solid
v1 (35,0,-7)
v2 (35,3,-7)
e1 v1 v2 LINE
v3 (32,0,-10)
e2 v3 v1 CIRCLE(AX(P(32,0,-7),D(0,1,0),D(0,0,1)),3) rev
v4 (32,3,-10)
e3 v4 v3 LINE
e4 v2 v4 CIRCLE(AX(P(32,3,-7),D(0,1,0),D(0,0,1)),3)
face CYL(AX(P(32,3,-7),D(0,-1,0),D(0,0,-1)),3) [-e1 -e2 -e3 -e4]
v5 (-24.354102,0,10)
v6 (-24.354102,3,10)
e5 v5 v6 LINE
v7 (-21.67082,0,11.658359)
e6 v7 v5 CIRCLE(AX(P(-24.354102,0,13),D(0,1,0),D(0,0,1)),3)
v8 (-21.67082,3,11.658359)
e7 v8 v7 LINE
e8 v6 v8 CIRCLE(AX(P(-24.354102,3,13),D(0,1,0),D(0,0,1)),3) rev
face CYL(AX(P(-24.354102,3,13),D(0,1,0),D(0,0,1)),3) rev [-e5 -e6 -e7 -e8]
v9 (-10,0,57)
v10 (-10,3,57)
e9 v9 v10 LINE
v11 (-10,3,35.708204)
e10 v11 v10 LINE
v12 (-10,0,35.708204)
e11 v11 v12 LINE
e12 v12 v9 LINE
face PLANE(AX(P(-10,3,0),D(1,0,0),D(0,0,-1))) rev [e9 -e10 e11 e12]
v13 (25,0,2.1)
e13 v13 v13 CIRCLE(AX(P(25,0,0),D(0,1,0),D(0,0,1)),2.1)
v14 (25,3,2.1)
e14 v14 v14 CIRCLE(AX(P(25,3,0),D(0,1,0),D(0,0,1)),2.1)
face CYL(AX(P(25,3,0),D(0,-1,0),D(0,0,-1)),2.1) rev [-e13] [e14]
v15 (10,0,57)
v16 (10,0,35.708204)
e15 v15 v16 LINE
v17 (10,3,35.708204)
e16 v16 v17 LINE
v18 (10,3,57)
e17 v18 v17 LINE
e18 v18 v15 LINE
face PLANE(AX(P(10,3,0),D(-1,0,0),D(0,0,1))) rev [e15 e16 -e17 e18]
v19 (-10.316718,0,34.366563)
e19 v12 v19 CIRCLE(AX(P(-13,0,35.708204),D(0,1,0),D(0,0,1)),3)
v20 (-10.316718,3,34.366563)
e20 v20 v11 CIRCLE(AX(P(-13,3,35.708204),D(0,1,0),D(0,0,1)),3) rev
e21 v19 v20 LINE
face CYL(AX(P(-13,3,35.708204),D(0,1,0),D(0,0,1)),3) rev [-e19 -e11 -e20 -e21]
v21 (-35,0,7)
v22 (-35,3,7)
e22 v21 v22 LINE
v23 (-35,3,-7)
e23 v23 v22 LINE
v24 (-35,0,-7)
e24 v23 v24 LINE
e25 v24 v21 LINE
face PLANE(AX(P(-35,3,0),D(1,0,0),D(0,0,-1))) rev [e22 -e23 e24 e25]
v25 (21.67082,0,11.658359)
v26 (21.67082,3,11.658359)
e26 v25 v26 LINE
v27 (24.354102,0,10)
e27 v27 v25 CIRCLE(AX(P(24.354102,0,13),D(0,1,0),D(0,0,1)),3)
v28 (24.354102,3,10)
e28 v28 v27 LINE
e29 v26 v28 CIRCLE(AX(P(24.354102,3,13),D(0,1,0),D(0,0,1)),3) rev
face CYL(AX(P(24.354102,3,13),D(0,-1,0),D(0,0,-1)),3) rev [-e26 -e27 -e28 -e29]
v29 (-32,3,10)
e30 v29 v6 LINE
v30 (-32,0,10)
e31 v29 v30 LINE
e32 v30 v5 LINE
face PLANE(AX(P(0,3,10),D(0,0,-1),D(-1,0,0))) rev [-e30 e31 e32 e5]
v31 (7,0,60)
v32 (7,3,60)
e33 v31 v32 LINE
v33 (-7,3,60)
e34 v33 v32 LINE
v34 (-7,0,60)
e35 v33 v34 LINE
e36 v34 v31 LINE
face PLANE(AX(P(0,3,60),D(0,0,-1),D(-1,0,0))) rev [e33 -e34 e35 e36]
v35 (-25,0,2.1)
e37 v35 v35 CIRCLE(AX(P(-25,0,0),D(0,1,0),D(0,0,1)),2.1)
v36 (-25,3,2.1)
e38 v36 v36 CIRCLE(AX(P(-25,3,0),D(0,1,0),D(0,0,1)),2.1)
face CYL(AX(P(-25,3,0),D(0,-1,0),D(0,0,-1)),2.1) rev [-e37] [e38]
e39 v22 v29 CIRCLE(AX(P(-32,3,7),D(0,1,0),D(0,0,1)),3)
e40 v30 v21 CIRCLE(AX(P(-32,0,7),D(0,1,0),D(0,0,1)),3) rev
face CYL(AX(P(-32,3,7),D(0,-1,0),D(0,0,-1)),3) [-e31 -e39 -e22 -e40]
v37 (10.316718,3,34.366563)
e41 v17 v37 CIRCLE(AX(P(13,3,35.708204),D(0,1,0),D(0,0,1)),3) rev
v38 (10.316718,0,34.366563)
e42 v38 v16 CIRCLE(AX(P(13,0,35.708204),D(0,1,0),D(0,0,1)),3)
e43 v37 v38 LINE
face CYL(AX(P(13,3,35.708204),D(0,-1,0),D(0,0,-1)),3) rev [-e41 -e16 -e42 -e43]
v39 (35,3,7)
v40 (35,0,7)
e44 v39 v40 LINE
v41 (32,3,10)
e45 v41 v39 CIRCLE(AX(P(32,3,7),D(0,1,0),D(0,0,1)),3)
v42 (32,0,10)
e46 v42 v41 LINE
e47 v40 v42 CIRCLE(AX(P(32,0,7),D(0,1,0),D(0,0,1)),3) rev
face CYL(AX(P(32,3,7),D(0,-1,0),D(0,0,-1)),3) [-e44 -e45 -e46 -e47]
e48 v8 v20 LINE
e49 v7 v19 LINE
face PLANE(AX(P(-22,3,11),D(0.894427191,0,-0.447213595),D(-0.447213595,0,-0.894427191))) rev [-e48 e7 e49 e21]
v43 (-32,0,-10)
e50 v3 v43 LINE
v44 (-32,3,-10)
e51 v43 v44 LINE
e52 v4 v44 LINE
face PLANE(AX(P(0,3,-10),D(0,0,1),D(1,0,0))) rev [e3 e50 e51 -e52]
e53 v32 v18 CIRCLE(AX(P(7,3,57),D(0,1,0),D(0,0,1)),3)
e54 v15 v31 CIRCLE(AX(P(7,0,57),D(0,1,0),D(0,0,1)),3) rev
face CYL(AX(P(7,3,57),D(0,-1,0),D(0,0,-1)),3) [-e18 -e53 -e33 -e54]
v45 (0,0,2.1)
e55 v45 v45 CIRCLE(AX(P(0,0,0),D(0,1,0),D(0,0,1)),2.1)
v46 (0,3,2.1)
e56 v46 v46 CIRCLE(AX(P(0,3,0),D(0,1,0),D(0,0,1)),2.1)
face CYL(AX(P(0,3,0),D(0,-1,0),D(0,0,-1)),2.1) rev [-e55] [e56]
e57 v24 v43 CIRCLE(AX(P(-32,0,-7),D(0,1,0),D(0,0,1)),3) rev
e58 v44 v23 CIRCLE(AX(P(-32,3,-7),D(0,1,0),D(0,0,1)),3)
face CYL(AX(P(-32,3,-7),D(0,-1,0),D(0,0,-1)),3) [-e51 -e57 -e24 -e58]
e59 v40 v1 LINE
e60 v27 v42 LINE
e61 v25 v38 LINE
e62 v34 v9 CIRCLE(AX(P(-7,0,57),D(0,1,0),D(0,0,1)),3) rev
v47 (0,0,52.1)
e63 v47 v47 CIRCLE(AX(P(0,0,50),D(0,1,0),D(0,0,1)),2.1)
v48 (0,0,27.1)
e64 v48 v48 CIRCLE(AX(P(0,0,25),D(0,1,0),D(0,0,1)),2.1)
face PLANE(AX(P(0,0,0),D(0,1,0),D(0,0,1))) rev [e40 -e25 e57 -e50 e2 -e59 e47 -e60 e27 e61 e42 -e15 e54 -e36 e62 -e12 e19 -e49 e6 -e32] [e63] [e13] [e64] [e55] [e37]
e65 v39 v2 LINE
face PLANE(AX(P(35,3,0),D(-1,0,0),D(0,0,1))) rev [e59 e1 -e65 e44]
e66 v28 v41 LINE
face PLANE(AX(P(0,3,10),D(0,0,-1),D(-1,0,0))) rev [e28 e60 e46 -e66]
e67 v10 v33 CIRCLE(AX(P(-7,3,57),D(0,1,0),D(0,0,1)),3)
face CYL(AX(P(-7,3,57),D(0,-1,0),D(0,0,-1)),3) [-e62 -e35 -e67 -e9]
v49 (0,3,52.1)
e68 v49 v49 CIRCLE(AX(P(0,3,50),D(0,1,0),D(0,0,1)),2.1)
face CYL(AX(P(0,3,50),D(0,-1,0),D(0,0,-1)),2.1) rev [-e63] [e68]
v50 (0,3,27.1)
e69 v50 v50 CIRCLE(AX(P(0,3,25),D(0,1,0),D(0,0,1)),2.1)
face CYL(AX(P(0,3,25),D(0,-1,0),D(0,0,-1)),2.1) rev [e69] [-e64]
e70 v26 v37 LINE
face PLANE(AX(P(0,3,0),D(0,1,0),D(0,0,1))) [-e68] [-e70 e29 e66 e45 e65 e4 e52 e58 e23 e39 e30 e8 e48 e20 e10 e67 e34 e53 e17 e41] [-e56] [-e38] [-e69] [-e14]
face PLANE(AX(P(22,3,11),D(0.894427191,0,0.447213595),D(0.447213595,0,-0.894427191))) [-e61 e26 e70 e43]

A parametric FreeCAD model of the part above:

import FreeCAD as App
import Part
import Sketcher

V = App.Vector


def edges_at(feature, points):
    """Names of the edges that pass closest to the given points."""
    edges = feature.Shape.Edges
    near = lambda p: min(range(len(edges)), key=lambda i: edges[i].distToShape(Part.Vertex(*p))[0])
    return sorted({f"Edge{near(p) + 1}" for p in points})


def add_polygon(sketch, points):
    """Adds a closed chain of lines whose ends are joined by coincident constraints."""
    first, n = sketch.GeometryCount, len(points)
    for a, b in zip(points, points[1:] + points[:1]):
        sketch.addGeometry(Part.LineSegment(App.Vector(*a, 0), App.Vector(*b, 0)), False)
    for i in range(n):
        sketch.addConstraint(Sketcher.Constraint("Coincident", first + i, 2, first + (i + 1) % n, 1))

doc = App.newDocument("Part")
body = doc.addObject("PartDesign::Body", "Body")

# Sketch on XZ plane
sketch1 = body.newObject("Sketcher::SketchObject", "Sketch")
sketch1.AttachmentSupport = (doc.getObject("XZ_Plane"), [""])
sketch1.MapMode = "FlatFace"
add_polygon(sketch1, [(22.5, 10), (35, 10), (35, -10), (-35, -10), (-35, 10), (-22.5, 10), (-10, 35), (-10, 60), (10, 60), (10, 35)])  # lines 0-9
sketch1.addGeometry(Part.Circle(V(0, 50, 0), V(0, 0, 1), 2.1), False)  # 10
sketch1.addGeometry(Part.Circle(V(-25, 0, 0), V(0, 0, 1), 2.1), False)  # 11
sketch1.addGeometry(Part.Circle(V(0, 25, 0), V(0, 0, 1), 2.1), False)  # 12
sketch1.addGeometry(Part.Circle(V(0, 0, 0), V(0, 0, 1), 2.1), False)  # 13
sketch1.addGeometry(Part.Circle(V(25, 0, 0), V(0, 0, 1), 2.1), False)  # 14
sketch1.addConstraint([
    Sketcher.Constraint("Horizontal", 0),
    Sketcher.Constraint("Vertical", 1),
    Sketcher.Constraint("Horizontal", 2),
    Sketcher.Constraint("Vertical", 3),
    Sketcher.Constraint("Horizontal", 4),
    Sketcher.Constraint("Vertical", 6),
    Sketcher.Constraint("Horizontal", 7),
    Sketcher.Constraint("Vertical", 8),
    Sketcher.Constraint("Coincident", 13, 3, -1, 1),
    Sketcher.Constraint("Equal", 10, 11),
    Sketcher.Constraint("Equal", 11, 12),
    Sketcher.Constraint("Equal", 12, 13),
    Sketcher.Constraint("Equal", 13, 14),
    Sketcher.Constraint("Symmetric", 11, 3, 14, 3, -1, 1),
    Sketcher.Constraint("Symmetric", 0, 2, 2, 2, -1, 1),
    Sketcher.Constraint("Symmetric", 5, 2, 8, 2, -2),
    Sketcher.Constraint("Symmetric", 4, 2, 9, 2, -2),
    Sketcher.Constraint("PointOnObject", 10, 3, -2),
    Sketcher.Constraint("PointOnObject", 11, 3, -1),
    Sketcher.Constraint("PointOnObject", 12, 3, -2),
    Sketcher.Constraint("Equal", 7, 1),
    Sketcher.Constraint("Diameter", 10, 4.2),
    Sketcher.Constraint("DistanceX", 2, 2, 2, 1, 70.0),
    Sketcher.Constraint("DistanceX", 7, 1, 7, 2, 20.0),
    Sketcher.Constraint("DistanceY", 6, 1, 6, 2, 25.0),
    Sketcher.Constraint("DistanceX", 0, 1, 0, 2, 12.5),
    Sketcher.Constraint("DistanceY", -1, 1, 10, 3, 50.0),
    Sketcher.Constraint("DistanceX", 11, 3, -1, 1, 25.0),
    Sketcher.Constraint("DistanceY", -1, 1, 12, 3, 25.0),
    Sketcher.Constraint("DistanceY", -1, 1, 5, 2, 35.0),
])
pad1 = body.newObject("PartDesign::Pad", "Pad")
pad1.Profile = sketch1
pad1.Length = 3
pad1.Reversed = True
doc.recompute()

fillet = body.newObject("PartDesign::Fillet", "Fillet")
fillet.Base = (pad1, edges_at(pad1, [
    (10, 1.5, 35),
    (10, 1.5, 60),
    (-10, 1.5, 60),
    (-10, 1.5, 35),
    (-22.5, 1.5, 10),
    (-35, 1.5, 10),
    (-35, 1.5, -10),
    (35, 1.5, -10),
    (35, 1.5, 10),
    (22.5, 1.5, 10),
]))
fillet.Radius = 3

doc.recompute()
